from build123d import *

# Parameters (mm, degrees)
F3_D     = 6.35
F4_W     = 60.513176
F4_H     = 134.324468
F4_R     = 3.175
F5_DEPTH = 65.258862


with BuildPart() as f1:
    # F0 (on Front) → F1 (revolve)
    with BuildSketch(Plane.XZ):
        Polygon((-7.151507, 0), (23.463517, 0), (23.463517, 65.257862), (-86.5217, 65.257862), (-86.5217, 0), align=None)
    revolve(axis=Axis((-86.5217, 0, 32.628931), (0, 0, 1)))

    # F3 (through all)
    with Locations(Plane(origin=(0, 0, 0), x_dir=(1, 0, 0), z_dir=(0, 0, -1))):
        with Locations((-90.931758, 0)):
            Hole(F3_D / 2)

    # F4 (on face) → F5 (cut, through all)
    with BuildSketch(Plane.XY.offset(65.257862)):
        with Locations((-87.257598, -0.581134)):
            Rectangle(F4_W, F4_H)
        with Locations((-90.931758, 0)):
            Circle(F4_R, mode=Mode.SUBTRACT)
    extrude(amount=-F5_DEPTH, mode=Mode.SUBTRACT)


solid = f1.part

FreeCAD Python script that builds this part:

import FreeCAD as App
import Part
import Sketcher
from FreeCAD import Vector
Q = App.Units.Quantity

doc = App.newDocument("Part")
body = doc.addObject("PartDesign::Body", "Body")

sketch1 = body.newObject("Sketcher::SketchObject", "Sketch")
sketch1.AttachmentSupport = (doc.getObject("XZ_Plane"), [""])
sketch1.MapMode = "FlatFace"
sketch1.addGeometry([
    Part.LineSegment(Vector(23, 0, 0), Vector(23, 65, 0)),
    Part.LineSegment(Vector(23, 65, 0), Vector(-87, 65, 0)),
    Part.LineSegment(Vector(-87, 65, 0), Vector(-87, 0, 0)),
    Part.LineSegment(Vector(-87, 0, 0), Vector(23, 0, 0)),
], False)
sketch1.addGeometry(Part.LineSegment(Vector(-87, 0, 0), Vector(-87, 65, 0)), True)
sketch1.addConstraint([
    Sketcher.Constraint("Coincident", 0, 2, 1, 1),
    Sketcher.Constraint("Coincident", 1, 2, 2, 1),
    Sketcher.Constraint("Coincident", 2, 2, 3, 1),
    Sketcher.Constraint("Coincident", 3, 2, 0, 1),
    Sketcher.Constraint("Vertical", 0),
    Sketcher.Constraint("Horizontal", 1),
    Sketcher.Constraint("Vertical", 2),
    Sketcher.Constraint("Horizontal", 3),
    Sketcher.Constraint("Vertical", 4),
    Sketcher.Constraint("Coincident", 4, 1, 2, 2),
    Sketcher.Constraint("PointOnObject", 2, 2, -1),
    Sketcher.Constraint("Horizontal", 0, 2, 4, 2),
    Sketcher.Constraint("DistanceX", 1, 2, -1, 1, 86.5217),
    Sketcher.Constraint("DistanceX", 1, 2, 1, 1, 109.985217),
    Sketcher.Constraint("DistanceY", 0, 1, 0, 2, 65.257862),
])
revolution = body.newObject("PartDesign::Revolution", "Revolution")
revolution.Profile = sketch1
revolution.ReferenceAxis = (sketch1, ["Axis0"])
revolution.Angle = 360

sketch2 = body.newObject("Sketcher::SketchObject", "Sketch001")
sketch2.AttachmentSupport = (doc.getObject("XY_Plane"), [""])
sketch2.MapMode = "FlatFace"
sketch2.addGeometry(Part.Circle(Vector(-90.9, 0, 0), Vector(0, 0, 1), 3.2), False)
sketch2.addConstraint([
    Sketcher.Constraint("PointOnObject", 0, 3, -1),
    Sketcher.Constraint("Diameter", 0, Q("0.25 in")),
    Sketcher.Constraint("DistanceX", 0, 3, -1, 1, 90.931758),
])
doc.recompute()
hole = body.newObject("PartDesign::Hole", "Hole")
hole.Profile = sketch2
hole.ThreadType = "None"
hole.Diameter = Q("0.25 in")
hole.DepthType = "ThroughAll"
hole.Reversed = True

sketch3 = body.newObject("Sketcher::SketchObject", "Sketch002")
sketch3.AttachmentSupport = (doc.getObject("XY_Plane"), [""])
sketch3.MapMode = "FlatFace"
sketch3.AttachmentOffset = App.Placement(Vector(0, 0, 65.257862), App.Rotation())
sketch3.addGeometry([
    Part.LineSegment(Vector(-117.5, 66.6, 0), Vector(-117.5, -67.7, 0)),
    Part.LineSegment(Vector(-117.5, -67.7, 0), Vector(-57, -67.7, 0)),
    Part.LineSegment(Vector(-57, -67.7, 0), Vector(-57, 66.6, 0)),
    Part.LineSegment(Vector(-57, 66.6, 0), Vector(-117.5, 66.6, 0)),
    Part.Circle(Vector(-90.9, 0, 0), Vector(0, 0, 1), 3.2),
], False)
sketch3.addConstraint([
    Sketcher.Constraint("Coincident", 0, 2, 1, 1),
    Sketcher.Constraint("Coincident", 1, 2, 2, 1),
    Sketcher.Constraint("Coincident", 2, 2, 3, 1),
    Sketcher.Constraint("Coincident", 3, 2, 0, 1),
    Sketcher.Constraint("Vertical", 0),
    Sketcher.Constraint("Horizontal", 1),
    Sketcher.Constraint("Vertical", 2),
    Sketcher.Constraint("Horizontal", 3),
    Sketcher.Constraint("PointOnObject", 4, 3, -1),
    Sketcher.Constraint("Diameter", 4, Q("0.25 in")),
    Sketcher.Constraint("DistanceY", 0, 2, 0, 1, 134.324468),
    Sketcher.Constraint("DistanceY", -1, 1, 2, 2, 66.5811),
    Sketcher.Constraint("DistanceX", 1, 1, 1, 2, 60.513176),
    Sketcher.Constraint("DistanceX", 4, 3, -1, 1, 90.931758),
    Sketcher.Constraint("DistanceX", 1, 2, -1, 1, 57.00101),
])
pocket1 = body.newObject("PartDesign::Pocket", "Pocket")
pocket1.Profile = sketch3
pocket1.Type = "ThroughAll"

doc.recompute()
